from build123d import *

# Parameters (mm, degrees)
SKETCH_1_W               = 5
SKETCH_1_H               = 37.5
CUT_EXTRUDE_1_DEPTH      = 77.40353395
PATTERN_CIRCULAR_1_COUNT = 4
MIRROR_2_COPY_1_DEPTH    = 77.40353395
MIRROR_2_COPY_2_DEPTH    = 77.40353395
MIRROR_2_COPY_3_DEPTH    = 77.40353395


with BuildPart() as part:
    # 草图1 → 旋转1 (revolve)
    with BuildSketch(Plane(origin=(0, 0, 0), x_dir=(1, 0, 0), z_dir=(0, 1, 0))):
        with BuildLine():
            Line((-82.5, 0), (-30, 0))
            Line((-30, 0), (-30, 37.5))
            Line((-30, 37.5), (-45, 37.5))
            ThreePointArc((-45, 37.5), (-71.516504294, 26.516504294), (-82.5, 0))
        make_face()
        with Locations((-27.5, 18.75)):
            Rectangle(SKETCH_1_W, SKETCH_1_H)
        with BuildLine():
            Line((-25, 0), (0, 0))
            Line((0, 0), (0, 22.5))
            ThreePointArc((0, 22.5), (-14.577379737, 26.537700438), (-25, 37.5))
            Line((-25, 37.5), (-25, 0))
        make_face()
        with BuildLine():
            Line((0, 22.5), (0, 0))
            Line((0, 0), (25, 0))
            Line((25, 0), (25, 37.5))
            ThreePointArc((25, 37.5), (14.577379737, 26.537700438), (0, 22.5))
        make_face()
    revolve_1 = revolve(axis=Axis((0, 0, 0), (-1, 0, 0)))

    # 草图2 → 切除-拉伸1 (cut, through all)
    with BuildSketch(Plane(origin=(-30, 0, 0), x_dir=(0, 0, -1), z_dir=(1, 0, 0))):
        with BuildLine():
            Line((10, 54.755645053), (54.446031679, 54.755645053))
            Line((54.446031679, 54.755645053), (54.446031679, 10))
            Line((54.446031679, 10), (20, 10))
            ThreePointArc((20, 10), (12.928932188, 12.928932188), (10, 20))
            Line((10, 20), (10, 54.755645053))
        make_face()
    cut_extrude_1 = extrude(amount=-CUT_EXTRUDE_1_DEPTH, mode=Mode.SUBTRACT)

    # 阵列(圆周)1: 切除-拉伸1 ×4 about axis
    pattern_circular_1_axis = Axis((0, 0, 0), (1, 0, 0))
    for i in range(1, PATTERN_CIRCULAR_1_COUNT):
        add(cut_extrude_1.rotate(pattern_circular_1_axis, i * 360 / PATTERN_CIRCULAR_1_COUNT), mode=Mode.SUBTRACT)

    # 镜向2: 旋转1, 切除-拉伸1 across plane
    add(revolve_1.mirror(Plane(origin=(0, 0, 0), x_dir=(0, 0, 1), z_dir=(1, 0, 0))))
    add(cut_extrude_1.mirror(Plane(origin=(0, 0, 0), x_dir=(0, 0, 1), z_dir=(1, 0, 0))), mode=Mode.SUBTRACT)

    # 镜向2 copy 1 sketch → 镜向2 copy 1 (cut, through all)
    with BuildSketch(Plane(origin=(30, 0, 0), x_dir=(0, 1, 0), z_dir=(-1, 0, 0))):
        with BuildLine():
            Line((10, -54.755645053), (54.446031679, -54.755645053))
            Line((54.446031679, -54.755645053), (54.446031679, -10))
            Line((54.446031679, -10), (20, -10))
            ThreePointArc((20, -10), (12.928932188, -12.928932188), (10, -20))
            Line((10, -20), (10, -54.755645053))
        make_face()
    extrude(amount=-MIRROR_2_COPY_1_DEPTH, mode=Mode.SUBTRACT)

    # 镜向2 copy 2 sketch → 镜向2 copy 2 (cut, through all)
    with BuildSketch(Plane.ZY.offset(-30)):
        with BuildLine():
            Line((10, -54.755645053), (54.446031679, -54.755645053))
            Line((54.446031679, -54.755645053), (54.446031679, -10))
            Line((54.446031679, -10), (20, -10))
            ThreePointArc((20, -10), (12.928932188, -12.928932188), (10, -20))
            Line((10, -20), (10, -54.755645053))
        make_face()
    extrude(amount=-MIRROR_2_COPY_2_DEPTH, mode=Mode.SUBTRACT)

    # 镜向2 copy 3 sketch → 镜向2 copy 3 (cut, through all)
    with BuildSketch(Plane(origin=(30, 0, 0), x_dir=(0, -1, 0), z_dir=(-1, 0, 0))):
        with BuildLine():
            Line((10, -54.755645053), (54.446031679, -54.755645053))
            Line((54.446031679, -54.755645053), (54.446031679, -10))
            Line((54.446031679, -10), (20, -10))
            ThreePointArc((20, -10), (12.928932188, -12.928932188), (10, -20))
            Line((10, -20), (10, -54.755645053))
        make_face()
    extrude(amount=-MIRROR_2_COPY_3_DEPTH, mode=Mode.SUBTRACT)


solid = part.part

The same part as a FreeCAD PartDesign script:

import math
import FreeCAD as App
import Part
import Sketcher
from FreeCAD import Vector
Q = App.Units.Quantity

doc = App.newDocument("Part")
params = doc.addObject("Spreadsheet::Sheet", "Params")
for row, (alias, value) in enumerate([
    ("sketch1_radius", "37.5 mm"),
    ("sketch1_width", "20 mm"),
    ("sketch1_width2", "107.5 mm"),
    ("revolution_angle", "360 deg"),
    ("sketch2_radius", "10 mm"),
    ("sketch3_radius", "10 mm"),
    ("sketch4_radius", "10 mm"),
    ("sketch5_radius", "10 mm"),
], start=1):
    params.set(f"A{row}", alias)
    params.set(f"B{row}", "=" + value)
    params.setAlias(f"B{row}", alias)

body = doc.addObject("PartDesign::Body", "Body")

# Sketch on XZ plane
sketch1 = body.newObject("Sketcher::SketchObject", "Sketch")
sketch1.AttachmentSupport = (doc.getObject("XZ_Plane"), [""])
sketch1.MapMode = "FlatFace"
sketch1.addGeometry(Part.LineSegment(Vector(-82, 0, 0), Vector(25, 0, 0)), False)
sketch1.addGeometry(Part.LineSegment(Vector(25, 0, 0), Vector(25, -38, 0)), False)
sketch1.addGeometry(Part.ArcOfCircle(Part.Circle(Vector(0, -51, 0), Vector(0, 0, 1), 28), math.radians(28), math.radians(90)), False)
sketch1.addGeometry(Part.ArcOfCircle(Part.Circle(Vector(0, -51, 0), Vector(0, 0, 1), 28), math.radians(90), math.radians(152)), False)
sketch1.addGeometry(Part.LineSegment(Vector(-25, -38, 0), Vector(-45, -38, 0)), False)
sketch1.addGeometry(Part.ArcOfCircle(Part.Circle(Vector(-45, 0, 0), Vector(0, 0, 1), 38), math.radians(-180), math.radians(-90)), False)
sketch1.addConstraint(Sketcher.Constraint("Coincident", 0, 2, 1, 1))
sketch1.addConstraint(Sketcher.Constraint("Coincident", 1, 2, 2, 1))
sketch1.addConstraint(Sketcher.Constraint("Tangent", 2, 2, 3, 1))
sketch1.addConstraint(Sketcher.Constraint("Coincident", 3, 2, 4, 1))
sketch1.addConstraint(Sketcher.Constraint("Tangent", 4, 2, 5, 2))
sketch1.addConstraint(Sketcher.Constraint("Coincident", 5, 1, 0, 1))
sketch1.addConstraint(Sketcher.Constraint("Horizontal", 0))
sketch1.addConstraint(Sketcher.Constraint("Vertical", 1))
sketch1.addConstraint(Sketcher.Constraint("Horizontal", 4))
sketch1.addConstraint(Sketcher.Constraint("Equal", 2, 3))
sketch1.addConstraint(Sketcher.Constraint("Symmetric", 1, 2, 3, 2, -2))
sketch1.addConstraint(Sketcher.Constraint("PointOnObject", 5, 3, -1))
sketch1.addConstraint(Sketcher.Constraint("PointOnObject", 0, 2, -1))
sketch1.addConstraint(Sketcher.Constraint("PointOnObject", 2, 2, -2))
sketch1.addConstraint(Sketcher.Constraint("Radius", 5, Q("37.5 mm")))
sketch1.addConstraint(Sketcher.Constraint("DistanceX", 4, 2, 4, 1, Q("20 mm")))
sketch1.addConstraint(Sketcher.Constraint("DistanceX", 0, 1, 0, 2, Q("107.5 mm")))
sketch1.addConstraint(Sketcher.Constraint("DistanceY", 1, 2, 2, 2, Q("15 mm")))
sketch1.setExpression("Constraints[14]", "Params.sketch1_radius")
sketch1.setExpression("Constraints[15]", "Params.sketch1_width")
sketch1.setExpression("Constraints[16]", "Params.sketch1_width2")
revolution = body.newObject("PartDesign::Revolution", "Revolution")
revolution.Profile = sketch1
revolution.ReferenceAxis = (sketch1, ["H_Axis"])
revolution.setExpression("Angle", "Params.revolution_angle")

# Sketch on YZ plane
sketch2 = body.newObject("Sketcher::SketchObject", "Sketch001")
sketch2.AttachmentSupport = (doc.getObject("YZ_Plane"), [""])
sketch2.MapMode = "FlatFace"
sketch2.AttachmentOffset = App.Placement(Vector(0, 0, -30), App.Rotation())
sketch2.addGeometry(Part.LineSegment(Vector(55, -54, 0), Vector(55, -10, 0)), False)
sketch2.addGeometry(Part.LineSegment(Vector(55, -10, 0), Vector(20, -10, 0)), False)
sketch2.addGeometry(Part.ArcOfCircle(Part.Circle(Vector(20, -20, 0), Vector(0, 0, 1), 10), math.radians(90), math.radians(180)), False)
sketch2.addGeometry(Part.LineSegment(Vector(10, -20, 0), Vector(10, -54, 0)), False)
sketch2.addGeometry(Part.LineSegment(Vector(10, -54, 0), Vector(55, -54, 0)), False)
sketch2.addConstraint(Sketcher.Constraint("Coincident", 0, 2, 1, 1))
sketch2.addConstraint(Sketcher.Constraint("Tangent", 1, 2, 2, 1))
sketch2.addConstraint(Sketcher.Constraint("Tangent", 2, 2, 3, 1))
sketch2.addConstraint(Sketcher.Constraint("Coincident", 3, 2, 4, 1))
sketch2.addConstraint(Sketcher.Constraint("Coincident", 4, 2, 0, 1))
sketch2.addConstraint(Sketcher.Constraint("Vertical", 0))
sketch2.addConstraint(Sketcher.Constraint("Horizontal", 1))
sketch2.addConstraint(Sketcher.Constraint("Vertical", 3))
sketch2.addConstraint(Sketcher.Constraint("Horizontal", 4))
sketch2.addConstraint(Sketcher.Constraint("Radius", 2, Q("10 mm")))
sketch2.addConstraint(Sketcher.Constraint("DistanceX", -1, 1, 2, 3, Q("20 mm")))
sketch2.addConstraint(Sketcher.Constraint("DistanceY", 2, 3, -1, 1, Q("20 mm")))
sketch2.addConstraint(Sketcher.Constraint("DistanceY", 0, 1, 0, 2, Q("44.446032 mm")))
sketch2.addConstraint(Sketcher.Constraint("DistanceX", 1, 2, 1, 1, Q("34.755645 mm")))
sketch2.setExpression("Constraints[9]", "Params.sketch2_radius")
pocket1 = body.newObject("PartDesign::Pocket", "Pocket")
pocket1.Profile = sketch2
pocket1.Type = "ThroughAll"
doc.recompute()

polarpattern = body.newObject("PartDesign::PolarPattern", "PolarPattern")
polarpattern.Originals = [pocket1]
polarpattern.Axis = (doc.getObject("X_Axis"), [""])
polarpattern.Angle = 360
polarpattern.Occurrences = 4
body.Tip = polarpattern
doc.recompute()

mirrored = body.newObject("PartDesign::Mirrored", "Mirrored")
mirrored.Originals = [revolution, pocket1]
mirrored.MirrorPlane = (doc.getObject("YZ_Plane"), [""])
body.Tip = mirrored

# Sketch on YZ plane
sketch3 = body.newObject("Sketcher::SketchObject", "Sketch002")
sketch3.AttachmentSupport = (doc.getObject("YZ_Plane"), [""])
sketch3.MapMode = "FlatFace"
sketch3.AttachmentOffset = App.Placement(Vector(0, 0, 30), App.Rotation())
sketch3.addGeometry(Part.LineSegment(Vector(10, 55, 0), Vector(54, 55, 0)), False)
sketch3.addGeometry(Part.LineSegment(Vector(54, 55, 0), Vector(54, 10, 0)), False)
sketch3.addGeometry(Part.LineSegment(Vector(54, 10, 0), Vector(20, 10, 0)), False)
sketch3.addGeometry(Part.ArcOfCircle(Part.Circle(Vector(20, 20, 0), Vector(0, 0, 1), 10), math.radians(180), math.radians(270)), False)
sketch3.addGeometry(Part.LineSegment(Vector(10, 20, 0), Vector(10, 55, 0)), False)
sketch3.addConstraint(Sketcher.Constraint("Coincident", 0, 2, 1, 1))
sketch3.addConstraint(Sketcher.Constraint("Coincident", 1, 2, 2, 1))
sketch3.addConstraint(Sketcher.Constraint("Tangent", 2, 2, 3, 2))
sketch3.addConstraint(Sketcher.Constraint("Tangent", 3, 1, 4, 1))
sketch3.addConstraint(Sketcher.Constraint("Coincident", 4, 2, 0, 1))
sketch3.addConstraint(Sketcher.Constraint("Horizontal", 0))
sketch3.addConstraint(Sketcher.Constraint("Vertical", 1))
sketch3.addConstraint(Sketcher.Constraint("Horizontal", 2))
sketch3.addConstraint(Sketcher.Constraint("Vertical", 4))
sketch3.addConstraint(Sketcher.Constraint("Radius", 3, Q("10 mm")))
sketch3.addConstraint(Sketcher.Constraint("DistanceX", -1, 1, 3, 3, Q("20 mm")))
sketch3.addConstraint(Sketcher.Constraint("DistanceY", -1, 1, 3, 3, Q("20 mm")))
sketch3.addConstraint(Sketcher.Constraint("DistanceX", 0, 1, 0, 2, Q("44.446032 mm")))
sketch3.addConstraint(Sketcher.Constraint("DistanceY", 1, 2, 1, 1, Q("44.755645 mm")))
sketch3.setExpression("Constraints[9]", "Params.sketch3_radius")
pocket2 = body.newObject("PartDesign::Pocket", "Pocket001")
pocket2.Profile = sketch3
pocket2.Type = "ThroughAll"
pocket2.Reversed = True

# Sketch on YZ plane
sketch4 = body.newObject("Sketcher::SketchObject", "Sketch003")
sketch4.AttachmentSupport = (doc.getObject("YZ_Plane"), [""])
sketch4.MapMode = "FlatFace"
sketch4.AttachmentOffset = App.Placement(Vector(0, 0, 30), App.Rotation())
sketch4.addGeometry(Part.LineSegment(Vector(-55, 10, 0), Vector(-55, 54, 0)), False)
sketch4.addGeometry(Part.LineSegment(Vector(-55, 54, 0), Vector(-10, 54, 0)), False)
sketch4.addGeometry(Part.LineSegment(Vector(-10, 54, 0), Vector(-10, 20, 0)), False)
sketch4.addGeometry(Part.ArcOfCircle(Part.Circle(Vector(-20, 20, 0), Vector(0, 0, 1), 10), math.radians(-90), math.radians(0)), False)
sketch4.addGeometry(Part.LineSegment(Vector(-20, 10, 0), Vector(-55, 10, 0)), False)
sketch4.addConstraint(Sketcher.Constraint("Coincident", 0, 2, 1, 1))
sketch4.addConstraint(Sketcher.Constraint("Coincident", 1, 2, 2, 1))
sketch4.addConstraint(Sketcher.Constraint("Tangent", 2, 2, 3, 2))
sketch4.addConstraint(Sketcher.Constraint("Tangent", 3, 1, 4, 1))
sketch4.addConstraint(Sketcher.Constraint("Coincident", 4, 2, 0, 1))
sketch4.addConstraint(Sketcher.Constraint("Vertical", 0))
sketch4.addConstraint(Sketcher.Constraint("Horizontal", 1))
sketch4.addConstraint(Sketcher.Constraint("Vertical", 2))
sketch4.addConstraint(Sketcher.Constraint("Horizontal", 4))
sketch4.addConstraint(Sketcher.Constraint("Radius", 3, Q("10 mm")))
sketch4.addConstraint(Sketcher.Constraint("DistanceX", 3, 3, -1, 1, Q("20 mm")))
sketch4.addConstraint(Sketcher.Constraint("DistanceY", -1, 1, 3, 3, Q("20 mm")))
sketch4.addConstraint(Sketcher.Constraint("DistanceY", 0, 1, 0, 2, Q("44.446032 mm")))
sketch4.addConstraint(Sketcher.Constraint("DistanceX", 1, 1, 1, 2, Q("44.755645 mm")))
sketch4.setExpression("Constraints[9]", "Params.sketch4_radius")
pocket3 = body.newObject("PartDesign::Pocket", "Pocket002")
pocket3.Profile = sketch4
pocket3.Type = "ThroughAll"
pocket3.Reversed = True

# Sketch on YZ plane
sketch5 = body.newObject("Sketcher::SketchObject", "Sketch004")
sketch5.AttachmentSupport = (doc.getObject("YZ_Plane"), [""])
sketch5.MapMode = "FlatFace"
sketch5.AttachmentOffset = App.Placement(Vector(0, 0, 30), App.Rotation())
sketch5.addGeometry(Part.LineSegment(Vector(-10, -55, 0), Vector(-54, -55, 0)), False)
sketch5.addGeometry(Part.LineSegment(Vector(-54, -55, 0), Vector(-54, -10, 0)), False)
sketch5.addGeometry(Part.LineSegment(Vector(-54, -10, 0), Vector(-20, -10, 0)), False)
sketch5.addGeometry(Part.ArcOfCircle(Part.Circle(Vector(-20, -20, 0), Vector(0, 0, 1), 10), math.radians(0), math.radians(90)), False)
sketch5.addGeometry(Part.LineSegment(Vector(-10, -20, 0), Vector(-10, -55, 0)), False)
sketch5.addConstraint(Sketcher.Constraint("Coincident", 0, 2, 1, 1))
sketch5.addConstraint(Sketcher.Constraint("Coincident", 1, 2, 2, 1))
sketch5.addConstraint(Sketcher.Constraint("Tangent", 2, 2, 3, 2))
sketch5.addConstraint(Sketcher.Constraint("Tangent", 3, 1, 4, 1))
sketch5.addConstraint(Sketcher.Constraint("Coincident", 4, 2, 0, 1))
sketch5.addConstraint(Sketcher.Constraint("Horizontal", 0))
sketch5.addConstraint(Sketcher.Constraint("Vertical", 1))
sketch5.addConstraint(Sketcher.Constraint("Horizontal", 2))
sketch5.addConstraint(Sketcher.Constraint("Vertical", 4))
sketch5.addConstraint(Sketcher.Constraint("Radius", 3, Q("10 mm")))
sketch5.addConstraint(Sketcher.Constraint("DistanceX", 3, 3, -1, 1, Q("20 mm")))
sketch5.addConstraint(Sketcher.Constraint("DistanceY", 3, 3, -1, 1, Q("20 mm")))
sketch5.addConstraint(Sketcher.Constraint("DistanceX", 0, 2, 0, 1, Q("44.446032 mm")))
sketch5.addConstraint(Sketcher.Constraint("DistanceY", 1, 1, 1, 2, Q("44.755645 mm")))
sketch5.setExpression("Constraints[9]", "Params.sketch5_radius")
pocket4 = body.newObject("PartDesign::Pocket", "Pocket003")
pocket4.Profile = sketch5
pocket4.Type = "ThroughAll"
pocket4.Reversed = True

doc.recompute()
